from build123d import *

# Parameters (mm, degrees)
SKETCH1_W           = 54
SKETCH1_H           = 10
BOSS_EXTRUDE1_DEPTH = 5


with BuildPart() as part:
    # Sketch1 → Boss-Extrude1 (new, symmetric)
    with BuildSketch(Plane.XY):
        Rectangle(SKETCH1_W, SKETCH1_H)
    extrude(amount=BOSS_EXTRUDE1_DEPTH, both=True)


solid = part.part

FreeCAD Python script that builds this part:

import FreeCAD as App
import Part
import Sketcher
Q = App.Units.Quantity


def add_polygon(sketch, points):
    """Adds a closed chain of lines whose ends are joined by coincident constraints."""
    first, n = sketch.GeometryCount, len(points)
    for a, b in zip(points, points[1:] + points[:1]):
        sketch.addGeometry(Part.LineSegment(App.Vector(*a, 0), App.Vector(*b, 0)), False)
    for i in range(n):
        sketch.addConstraint(Sketcher.Constraint("Coincident", first + i, 2, first + (i + 1) % n, 1))

doc = App.newDocument("Part")
params = doc.addObject("Spreadsheet::Sheet", "Params")
for row, (alias, value) in enumerate([
    ("sketch1_width", "54 mm"),
    ("sketch1_height", "10 mm"),
    ("pad1_length", "10 mm"),
], start=1):
    params.set(f"A{row}", alias)
    params.set(f"B{row}", "=" + value)
    params.setAlias(f"B{row}", alias)

body = doc.addObject("PartDesign::Body", "Body")

# Sketch on XY plane
sketch1 = body.newObject("Sketcher::SketchObject", "Sketch")
sketch1.AttachmentSupport = (doc.getObject("XY_Plane"), [""])
sketch1.MapMode = "FlatFace"
add_polygon(sketch1, [(-27, 5), (-27, -5), (27, -5), (27, 5)])  # lines 0-3
sketch1.addConstraint([
    Sketcher.Constraint("Vertical", 0),
    Sketcher.Constraint("Horizontal", 1),
    Sketcher.Constraint("Vertical", 2),
    Sketcher.Constraint("Horizontal", 3),
    Sketcher.Constraint("Symmetric", 0, 2, 2, 2, -1, 1),
    Sketcher.Constraint("DistanceX", 1, 1, 1, 2, Q("54 mm")),
    Sketcher.Constraint("DistanceY", 0, 2, 0, 1, Q("10 mm")),
])
sketch1.setExpression("Constraints[9]", "Params.sketch1_width")
sketch1.setExpression("Constraints[10]", "Params.sketch1_height")
pad1 = body.newObject("PartDesign::Pad", "Pad")
pad1.Profile = sketch1
pad1.setExpression("Length", "Params.pad1_length")
pad1.Midplane = True

doc.recompute()
